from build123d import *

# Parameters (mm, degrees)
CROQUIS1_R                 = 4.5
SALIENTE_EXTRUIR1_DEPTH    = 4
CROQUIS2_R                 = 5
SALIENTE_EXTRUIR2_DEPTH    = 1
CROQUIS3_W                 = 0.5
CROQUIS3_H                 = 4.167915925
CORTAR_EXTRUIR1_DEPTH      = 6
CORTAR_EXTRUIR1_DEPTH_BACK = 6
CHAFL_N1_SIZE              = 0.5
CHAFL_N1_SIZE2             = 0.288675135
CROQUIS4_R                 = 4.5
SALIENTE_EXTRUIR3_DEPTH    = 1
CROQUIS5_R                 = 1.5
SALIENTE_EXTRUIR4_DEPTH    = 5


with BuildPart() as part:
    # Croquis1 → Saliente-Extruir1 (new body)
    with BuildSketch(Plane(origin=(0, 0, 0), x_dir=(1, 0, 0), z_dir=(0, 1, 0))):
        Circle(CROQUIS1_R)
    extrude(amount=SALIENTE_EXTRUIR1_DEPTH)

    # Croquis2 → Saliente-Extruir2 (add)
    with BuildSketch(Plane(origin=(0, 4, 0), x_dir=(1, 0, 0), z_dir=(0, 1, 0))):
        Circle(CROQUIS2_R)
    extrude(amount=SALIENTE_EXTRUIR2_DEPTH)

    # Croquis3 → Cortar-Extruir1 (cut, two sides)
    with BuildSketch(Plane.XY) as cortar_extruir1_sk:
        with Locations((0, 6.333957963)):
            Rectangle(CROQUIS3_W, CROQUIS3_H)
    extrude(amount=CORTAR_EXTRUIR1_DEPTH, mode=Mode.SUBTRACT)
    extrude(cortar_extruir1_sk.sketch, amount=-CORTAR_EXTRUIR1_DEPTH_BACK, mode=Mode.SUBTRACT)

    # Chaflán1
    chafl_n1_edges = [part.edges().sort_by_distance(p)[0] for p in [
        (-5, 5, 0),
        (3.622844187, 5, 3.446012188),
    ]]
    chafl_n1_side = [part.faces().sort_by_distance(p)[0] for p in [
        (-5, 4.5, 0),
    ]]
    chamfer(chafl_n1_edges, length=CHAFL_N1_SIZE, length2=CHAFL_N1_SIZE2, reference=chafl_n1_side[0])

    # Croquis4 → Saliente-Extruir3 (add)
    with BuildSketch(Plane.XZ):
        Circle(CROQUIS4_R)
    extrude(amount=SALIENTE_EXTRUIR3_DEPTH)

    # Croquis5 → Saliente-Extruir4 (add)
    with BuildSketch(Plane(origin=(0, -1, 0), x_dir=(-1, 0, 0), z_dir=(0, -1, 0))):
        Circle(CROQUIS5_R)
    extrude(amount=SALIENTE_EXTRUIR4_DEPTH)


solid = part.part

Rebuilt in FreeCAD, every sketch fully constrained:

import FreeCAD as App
import Part
import Sketcher

V = App.Vector
Q = App.Units.Quantity


def edges_at(feature, points):
    """Names of the edges that pass closest to the given points."""
    edges = feature.Shape.Edges
    near = lambda p: min(range(len(edges)), key=lambda i: edges[i].distToShape(Part.Vertex(*p))[0])
    return sorted({f"Edge{near(p) + 1}" for p in points})


def add_polygon(sketch, points):
    """Adds a closed chain of lines whose ends are joined by coincident constraints."""
    first, n = sketch.GeometryCount, len(points)
    for a, b in zip(points, points[1:] + points[:1]):
        sketch.addGeometry(Part.LineSegment(App.Vector(*a, 0), App.Vector(*b, 0)), False)
    for i in range(n):
        sketch.addConstraint(Sketcher.Constraint("Coincident", first + i, 2, first + (i + 1) % n, 1))

doc = App.newDocument("Part")
body = doc.addObject("PartDesign::Body", "Body")

# Sketch on XZ plane
sketch1 = body.newObject("Sketcher::SketchObject", "Sketch")
sketch1.AttachmentSupport = (doc.getObject("XZ_Plane"), [""])
sketch1.MapMode = "FlatFace"
sketch1.addGeometry(Part.Circle(V(0, 0, 0), V(0, 0, 1), 4.5), False)
sketch1.addConstraint(Sketcher.Constraint("Coincident", 0, 3, -1, 1))
sketch1.addConstraint(Sketcher.Constraint("Diameter", 0, Q("9 mm")))
pad1 = body.newObject("PartDesign::Pad", "Pad")
pad1.Profile = sketch1
pad1.Length = 4
pad1.Reversed = True

# Sketch on XZ plane
sketch2 = body.newObject("Sketcher::SketchObject", "Sketch001")
sketch2.AttachmentSupport = (doc.getObject("XZ_Plane"), [""])
sketch2.MapMode = "FlatFace"
sketch2.AttachmentOffset = App.Placement(V(0, 0, -4), App.Rotation())
sketch2.addGeometry(Part.Circle(V(0, 0, 0), V(0, 0, 1), 5), False)
sketch2.addConstraint(Sketcher.Constraint("Coincident", 0, 3, -1, 1))
sketch2.addConstraint(Sketcher.Constraint("Diameter", 0, Q("10 mm")))
pad2 = body.newObject("PartDesign::Pad", "Pad001")
pad2.Profile = sketch2
pad2.Length = 1
pad2.Reversed = True

# Sketch on XY plane
sketch3 = body.newObject("Sketcher::SketchObject", "Sketch002")
sketch3.AttachmentSupport = (doc.getObject("XY_Plane"), [""])
sketch3.MapMode = "FlatFace"
add_polygon(sketch3, [(-0.2, 8.4), (-0.2, 4.3), (0.2, 4.3), (0.2, 8.4)])  # lines 0-3
sketch3.addConstraint(Sketcher.Constraint("Vertical", 0))
sketch3.addConstraint(Sketcher.Constraint("Horizontal", 1))
sketch3.addConstraint(Sketcher.Constraint("Vertical", 2))
sketch3.addConstraint(Sketcher.Constraint("Horizontal", 3))
sketch3.addConstraint(Sketcher.Constraint("DistanceX", 1, 1, 1, 2, Q("0.5 mm")))
sketch3.addConstraint(Sketcher.Constraint("DistanceX", 0, 2, -1, 1, Q("0.25 mm")))
sketch3.addConstraint(Sketcher.Constraint("DistanceY", -1, 1, 0, 2, Q("4.25 mm")))
sketch3.addConstraint(Sketcher.Constraint("DistanceY", 0, 2, 0, 1, Q("4.167916 mm")))
pocket1 = body.newObject("PartDesign::Pocket", "Pocket")
pocket1.Profile = sketch3
pocket1.Type = "ThroughAll"
pocket1.Midplane = True
doc.recompute()

chamfer = body.newObject("PartDesign::Chamfer", "Chamfer")
chamfer.Base = (pocket1, edges_at(pocket1, [(-5, 5, 0), (3.623, 5, 3.446)]))
chamfer.ChamferType = "Two distances"
chamfer.Size = 0.5
chamfer.Size2 = 0.288675

# Sketch on XZ plane
sketch4 = body.newObject("Sketcher::SketchObject", "Sketch003")
sketch4.AttachmentSupport = (doc.getObject("XZ_Plane"), [""])
sketch4.MapMode = "FlatFace"
sketch4.addGeometry(Part.Circle(V(0, 0, 0), V(0, 0, 1), 4.5), False)
sketch4.addConstraint(Sketcher.Constraint("Coincident", 0, 3, -1, 1))
sketch4.addConstraint(Sketcher.Constraint("Diameter", 0, Q("9 mm")))
pad3 = body.newObject("PartDesign::Pad", "Pad002")
pad3.Profile = sketch4
pad3.Length = 1

# Sketch on XZ plane
sketch5 = body.newObject("Sketcher::SketchObject", "Sketch004")
sketch5.AttachmentSupport = (doc.getObject("XZ_Plane"), [""])
sketch5.MapMode = "FlatFace"
sketch5.AttachmentOffset = App.Placement(V(0, 0, 1), App.Rotation())
sketch5.addGeometry(Part.Circle(V(0, 0, 0), V(0, 0, 1), 1.5), False)
sketch5.addConstraint(Sketcher.Constraint("Coincident", 0, 3, -1, 1))
sketch5.addConstraint(Sketcher.Constraint("Diameter", 0, Q("3 mm")))
pad4 = body.newObject("PartDesign::Pad", "Pad003")
pad4.Profile = sketch5
pad4.Length = 5

doc.recompute()
